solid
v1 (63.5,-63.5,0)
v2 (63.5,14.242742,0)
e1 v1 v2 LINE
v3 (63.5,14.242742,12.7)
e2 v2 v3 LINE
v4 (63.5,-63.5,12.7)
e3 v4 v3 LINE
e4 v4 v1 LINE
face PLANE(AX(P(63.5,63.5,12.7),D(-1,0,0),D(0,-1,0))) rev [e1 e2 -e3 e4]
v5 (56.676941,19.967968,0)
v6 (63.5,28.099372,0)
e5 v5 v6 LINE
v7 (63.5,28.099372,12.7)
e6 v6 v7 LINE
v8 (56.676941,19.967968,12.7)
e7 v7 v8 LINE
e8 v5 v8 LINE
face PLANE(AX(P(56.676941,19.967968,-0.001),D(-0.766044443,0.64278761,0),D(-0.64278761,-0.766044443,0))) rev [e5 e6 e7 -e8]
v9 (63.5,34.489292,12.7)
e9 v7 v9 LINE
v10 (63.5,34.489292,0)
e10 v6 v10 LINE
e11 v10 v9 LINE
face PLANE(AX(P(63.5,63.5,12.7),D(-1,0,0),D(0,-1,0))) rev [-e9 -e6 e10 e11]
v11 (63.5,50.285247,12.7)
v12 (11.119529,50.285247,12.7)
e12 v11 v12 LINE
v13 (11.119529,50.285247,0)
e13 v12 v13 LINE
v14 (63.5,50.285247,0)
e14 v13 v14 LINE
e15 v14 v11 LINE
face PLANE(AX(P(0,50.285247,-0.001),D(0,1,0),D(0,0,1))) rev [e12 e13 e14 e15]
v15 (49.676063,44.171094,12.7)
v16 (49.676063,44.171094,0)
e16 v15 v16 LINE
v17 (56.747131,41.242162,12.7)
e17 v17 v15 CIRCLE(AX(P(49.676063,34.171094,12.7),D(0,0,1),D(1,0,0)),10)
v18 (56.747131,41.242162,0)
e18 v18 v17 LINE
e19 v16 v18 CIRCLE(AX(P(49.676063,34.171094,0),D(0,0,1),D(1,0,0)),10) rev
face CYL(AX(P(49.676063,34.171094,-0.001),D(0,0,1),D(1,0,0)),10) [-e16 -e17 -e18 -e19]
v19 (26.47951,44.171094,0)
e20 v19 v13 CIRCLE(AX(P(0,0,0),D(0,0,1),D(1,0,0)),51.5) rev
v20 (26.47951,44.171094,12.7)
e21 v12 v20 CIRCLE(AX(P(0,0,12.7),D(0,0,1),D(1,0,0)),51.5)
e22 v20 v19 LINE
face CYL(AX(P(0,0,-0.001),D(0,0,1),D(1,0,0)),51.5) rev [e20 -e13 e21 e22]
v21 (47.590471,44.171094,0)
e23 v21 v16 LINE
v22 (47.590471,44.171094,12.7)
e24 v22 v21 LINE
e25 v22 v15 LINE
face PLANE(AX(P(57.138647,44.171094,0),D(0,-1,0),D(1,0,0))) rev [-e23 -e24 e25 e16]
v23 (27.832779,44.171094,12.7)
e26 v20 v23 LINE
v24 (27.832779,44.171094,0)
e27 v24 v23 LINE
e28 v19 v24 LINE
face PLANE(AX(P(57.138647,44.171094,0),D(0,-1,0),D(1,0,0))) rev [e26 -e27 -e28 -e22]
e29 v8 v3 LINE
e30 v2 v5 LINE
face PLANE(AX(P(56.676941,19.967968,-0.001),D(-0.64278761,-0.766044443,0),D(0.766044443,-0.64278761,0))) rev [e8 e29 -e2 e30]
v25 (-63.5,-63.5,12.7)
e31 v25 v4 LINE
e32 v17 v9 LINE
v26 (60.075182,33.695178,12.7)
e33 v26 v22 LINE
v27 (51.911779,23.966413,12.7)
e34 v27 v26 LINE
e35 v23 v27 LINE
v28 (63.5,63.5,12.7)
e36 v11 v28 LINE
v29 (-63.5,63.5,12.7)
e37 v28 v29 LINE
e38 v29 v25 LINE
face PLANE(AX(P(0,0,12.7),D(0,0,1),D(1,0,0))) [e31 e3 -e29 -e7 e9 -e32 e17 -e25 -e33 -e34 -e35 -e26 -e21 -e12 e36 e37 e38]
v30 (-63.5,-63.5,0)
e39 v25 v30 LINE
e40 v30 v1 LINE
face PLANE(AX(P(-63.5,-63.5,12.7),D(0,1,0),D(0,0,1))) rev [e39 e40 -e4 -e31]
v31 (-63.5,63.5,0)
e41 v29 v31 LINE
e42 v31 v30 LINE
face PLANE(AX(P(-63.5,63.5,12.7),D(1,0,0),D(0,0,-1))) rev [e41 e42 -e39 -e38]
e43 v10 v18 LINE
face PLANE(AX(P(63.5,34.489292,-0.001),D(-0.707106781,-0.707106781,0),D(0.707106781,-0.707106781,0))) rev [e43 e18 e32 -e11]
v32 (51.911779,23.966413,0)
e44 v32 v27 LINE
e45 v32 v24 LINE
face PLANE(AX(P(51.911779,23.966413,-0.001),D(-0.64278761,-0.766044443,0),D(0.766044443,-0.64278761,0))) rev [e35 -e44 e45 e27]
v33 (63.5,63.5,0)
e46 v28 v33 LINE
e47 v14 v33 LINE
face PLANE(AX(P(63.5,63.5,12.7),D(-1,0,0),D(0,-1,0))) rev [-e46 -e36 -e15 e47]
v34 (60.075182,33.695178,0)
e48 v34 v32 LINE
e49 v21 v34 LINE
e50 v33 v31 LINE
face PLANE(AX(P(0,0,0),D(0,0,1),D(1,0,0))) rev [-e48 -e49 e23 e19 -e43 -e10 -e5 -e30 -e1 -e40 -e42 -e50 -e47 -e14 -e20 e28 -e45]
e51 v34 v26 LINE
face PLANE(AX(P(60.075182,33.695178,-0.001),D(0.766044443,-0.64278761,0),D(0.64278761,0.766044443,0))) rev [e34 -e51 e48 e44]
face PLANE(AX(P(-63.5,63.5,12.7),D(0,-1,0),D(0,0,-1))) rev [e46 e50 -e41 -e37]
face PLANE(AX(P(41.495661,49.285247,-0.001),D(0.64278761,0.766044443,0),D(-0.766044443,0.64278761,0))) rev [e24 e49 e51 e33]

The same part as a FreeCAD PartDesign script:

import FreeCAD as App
import Part
import Sketcher
from FreeCAD import Vector
Q = App.Units.Quantity


def edges_at(feature, points):
    """Names of the edges that pass closest to the given points."""
    edges = feature.Shape.Edges
    near = lambda p: min(range(len(edges)), key=lambda i: edges[i].distToShape(Part.Vertex(*p))[0])
    return sorted({f"Edge{near(p) + 1}" for p in points})

doc = App.newDocument("Part")
body = doc.addObject("PartDesign::Body", "Body")

sketch1 = body.newObject("Sketcher::SketchObject", "Sketch")
sketch1.AttachmentSupport = (doc.getObject("XY_Plane"), [""])
sketch1.MapMode = "FlatFace"
sketch1.addGeometry(Part.LineSegment(Vector(-64, 64, 0), Vector(-64, -64, 0)), False)
sketch1.addGeometry(Part.LineSegment(Vector(-64, -64, 0), Vector(64, -64, 0)), False)
sketch1.addGeometry(Part.LineSegment(Vector(64, -64, 0), Vector(64, 64, 0)), False)
sketch1.addGeometry(Part.LineSegment(Vector(64, 64, 0), Vector(-64, 64, 0)), False)
sketch1.addConstraint(Sketcher.Constraint("Coincident", 0, 2, 1, 1))
sketch1.addConstraint(Sketcher.Constraint("Coincident", 1, 2, 2, 1))
sketch1.addConstraint(Sketcher.Constraint("Coincident", 2, 2, 3, 1))
sketch1.addConstraint(Sketcher.Constraint("Coincident", 3, 2, 0, 1))
sketch1.addConstraint(Sketcher.Constraint("Vertical", 0))
sketch1.addConstraint(Sketcher.Constraint("Horizontal", 1))
sketch1.addConstraint(Sketcher.Constraint("Vertical", 2))
sketch1.addConstraint(Sketcher.Constraint("Horizontal", 3))
sketch1.addConstraint(Sketcher.Constraint("Symmetric", 0, 2, 2, 2, -1, 1))
sketch1.addConstraint(Sketcher.Constraint("Equal", 3, 0))
sketch1.addConstraint(Sketcher.Constraint("DistanceX", 1, 1, 1, 2, Q("127 mm")))
pad1 = body.newObject("PartDesign::Pad", "Pad")
pad1.Profile = sketch1
pad1.Length = 12.7

sketch2 = body.newObject("Sketcher::SketchObject", "Sketch001")
sketch2.AttachmentSupport = (doc.getObject("XY_Plane"), [""])
sketch2.MapMode = "FlatFace"
sketch2.AttachmentOffset = App.Placement(Vector(0, 0, 12.7), App.Rotation())
sketch2.addGeometry(Part.Circle(Vector(0, 0, 0), Vector(0, 0, 1), 52), False)
sketch2.addConstraint(Sketcher.Constraint("Coincident", 0, 3, -1, 1))
sketch2.addConstraint(Sketcher.Constraint("Diameter", 0, Q("103 mm")))
pocket1 = body.newObject("PartDesign::Pocket", "Pocket")
pocket1.Profile = sketch2
pocket1.Type = "UpToFirst"

sketch3 = body.newObject("Sketcher::SketchObject", "Sketch002")
sketch3.AttachmentSupport = (doc.getObject("XY_Plane"), [""])
sketch3.MapMode = "FlatFace"
sketch3.AttachmentOffset = App.Placement(Vector(0, 0, 12.7), App.Rotation())
sketch3.addGeometry(Part.LineSegment(Vector(63.5, 50.3, 0), Vector(0, 50.3, 0)), False)
sketch3.addGeometry(Part.LineSegment(Vector(0, 50.3, 0), Vector(0, 49.3, 0)), False)
sketch3.addGeometry(Part.LineSegment(Vector(0, 49.3, 0), Vector(48.7, 49.3, 0)), False)
sketch3.addGeometry(Part.LineSegment(Vector(48.7, 49.3, 0), Vector(63.5, 34.5, 0)), False)
sketch3.addGeometry(Part.LineSegment(Vector(63.5, 34.5, 0), Vector(63.5, 50.3, 0)), False)
sketch3.addConstraint(Sketcher.Constraint("Coincident", 0, 2, 1, 1))
sketch3.addConstraint(Sketcher.Constraint("Coincident", 1, 2, 2, 1))
sketch3.addConstraint(Sketcher.Constraint("Coincident", 2, 2, 3, 1))
sketch3.addConstraint(Sketcher.Constraint("Coincident", 3, 2, 4, 1))
sketch3.addConstraint(Sketcher.Constraint("Coincident", 4, 2, 0, 1))
sketch3.addConstraint(Sketcher.Constraint("Horizontal", 0))
sketch3.addConstraint(Sketcher.Constraint("Vertical", 1))
sketch3.addConstraint(Sketcher.Constraint("Horizontal", 2))
sketch3.addConstraint(Sketcher.Constraint("Vertical", 4))
sketch3.addConstraint(Sketcher.Constraint("PointOnObject", 0, 2, -2))
sketch3.addConstraint(Sketcher.Constraint("DistanceY", 1, 2, 1, 1, Q("1 mm")))
sketch3.addConstraint(Sketcher.Constraint("Angle", 3, Q("-45 deg")))
sketch3.addConstraint(Sketcher.Constraint("DistanceX", 0, 2, 0, 1, Q("63.5 mm")))
sketch3.addConstraint(Sketcher.Constraint("Distance", 3, Q("20.92464 mm")))
sketch3.addConstraint(Sketcher.Constraint("DistanceY", -1, 1, 0, 2, Q("50.285247 mm")))
pocket2 = body.newObject("PartDesign::Pocket", "Pocket001")
pocket2.Profile = sketch3
pocket2.Type = "UpToFirst"

sketch4 = body.newObject("Sketcher::SketchObject", "Sketch003")
sketch4.AttachmentSupport = (doc.getObject("XY_Plane"), [""])
sketch4.MapMode = "FlatFace"
sketch4.AttachmentOffset = App.Placement(Vector(0, 0, 12.7), App.Rotation())
sketch4.addGeometry(Part.LineSegment(Vector(60, 34, 0), Vector(41, 49, 0)), False)
sketch4.addGeometry(Part.LineSegment(Vector(41, 49, 0), Vector(22, 49, 0)), False)
sketch4.addGeometry(Part.LineSegment(Vector(22, 49, 0), Vector(52, 24, 0)), False)
sketch4.addGeometry(Part.LineSegment(Vector(52, 24, 0), Vector(60, 34, 0)), False)
sketch4.addConstraint(Sketcher.Constraint("Coincident", 0, 2, 1, 1))
sketch4.addConstraint(Sketcher.Constraint("Coincident", 1, 2, 2, 1))
sketch4.addConstraint(Sketcher.Constraint("Coincident", 2, 2, 3, 1))
sketch4.addConstraint(Sketcher.Constraint("Coincident", 3, 2, 0, 1))
sketch4.addConstraint(Sketcher.Constraint("Horizontal", 1))
sketch4.addConstraint(Sketcher.Constraint("Parallel", 0, 2))
sketch4.addConstraint(Sketcher.Constraint("Perpendicular", 2, 3))
sketch4.addConstraint(Sketcher.Constraint("Angle", 0, Q("140 deg")))
sketch4.addConstraint(Sketcher.Constraint("Distance", 3, Q("12.7 mm")))
sketch4.addConstraint(Sketcher.Constraint("DistanceX", -1, 1, 0, 2, Q("41.495661 mm")))
sketch4.addConstraint(Sketcher.Constraint("DistanceX", -1, 1, 2, 2, Q("51.911779 mm")))
sketch4.addConstraint(Sketcher.Constraint("DistanceY", -1, 1, 0, 2, Q("49.285247 mm")))
pocket3 = body.newObject("PartDesign::Pocket", "Pocket002")
pocket3.Profile = sketch4
pocket3.Type = "UpToFirst"

sketch5 = body.newObject("Sketcher::SketchObject", "Sketch004")
sketch5.AttachmentSupport = (doc.getObject("XY_Plane"), [""])
sketch5.MapMode = "FlatFace"
sketch5.AttachmentOffset = App.Placement(Vector(0, 0, 12.7), App.Rotation())
sketch5.addGeometry(Part.LineSegment(Vector(64, 28, 0), Vector(57, 20, 0)), False)
sketch5.addGeometry(Part.LineSegment(Vector(57, 20, 0), Vector(64, 14, 0)), False)
sketch5.addGeometry(Part.LineSegment(Vector(64, 14, 0), Vector(64, 28, 0)), False)
sketch5.addConstraint(Sketcher.Constraint("Coincident", 0, 2, 1, 1))
sketch5.addConstraint(Sketcher.Constraint("Coincident", 1, 2, 2, 1))
sketch5.addConstraint(Sketcher.Constraint("Coincident", 2, 2, 0, 1))
sketch5.addConstraint(Sketcher.Constraint("Vertical", 2))
sketch5.addConstraint(Sketcher.Constraint("Perpendicular", 0, 1))
sketch5.addConstraint(Sketcher.Constraint("Angle", 0, Q("-130 deg")))
sketch5.addConstraint(Sketcher.Constraint("DistanceX", -1, 1, 1, 2, Q("63.5 mm")))
sketch5.addConstraint(Sketcher.Constraint("DistanceY", 2, 1, 2, 2, Q("13.85663 mm")))
sketch5.addConstraint(Sketcher.Constraint("DistanceY", -1, 1, 1, 2, Q("14.242742 mm")))
pocket4 = body.newObject("PartDesign::Pocket", "Pocket003")
pocket4.Profile = sketch5
pocket4.Type = "UpToFirst"

sketch6 = body.newObject("Sketcher::SketchObject", "Sketch005")
sketch6.AttachmentSupport = (doc.getObject("XY_Plane"), [""])
sketch6.MapMode = "FlatFace"
sketch6.AttachmentOffset = App.Placement(Vector(0, 0, 12.7), App.Rotation())
sketch6.addGeometry(Part.LineSegment(Vector(57, 50, 0), Vector(12, 50, 0)), False)
sketch6.addGeometry(Part.LineSegment(Vector(12, 50, 0), Vector(19, 44, 0)), False)
sketch6.addGeometry(Part.LineSegment(Vector(19, 44, 0), Vector(57, 44, 0)), False)
sketch6.addGeometry(Part.LineSegment(Vector(57, 44, 0), Vector(57, 50, 0)), False)
sketch6.addConstraint(Sketcher.Constraint("Coincident", 0, 2, 1, 1))
sketch6.addConstraint(Sketcher.Constraint("Coincident", 1, 2, 2, 1))
sketch6.addConstraint(Sketcher.Constraint("Coincident", 2, 2, 3, 1))
sketch6.addConstraint(Sketcher.Constraint("Coincident", 3, 2, 0, 1))
sketch6.addConstraint(Sketcher.Constraint("Horizontal", 0))
sketch6.addConstraint(Sketcher.Constraint("Horizontal", 2))
sketch6.addConstraint(Sketcher.Constraint("Vertical", 3))
sketch6.addConstraint(Sketcher.Constraint("DistanceX", 0, 2, 0, 1, Q("45.344299 mm")))
sketch6.addConstraint(Sketcher.Constraint("DistanceY", 3, 1, 3, 2, Q("5.626261 mm")))
sketch6.addConstraint(Sketcher.Constraint("DistanceX", 2, 1, 2, 2, Q("37.777543 mm")))
sketch6.addConstraint(Sketcher.Constraint("DistanceX", -1, 1, 0, 2, Q("11.794347 mm")))
sketch6.addConstraint(Sketcher.Constraint("DistanceY", -1, 1, 0, 2, Q("49.797355 mm")))
pocket5 = body.newObject("PartDesign::Pocket", "Pocket004")
pocket5.Profile = sketch6
pocket5.Type = "ThroughAll"
doc.recompute()

fillet = body.newObject("PartDesign::Fillet", "Fillet")
fillet.Base = (pocket5, edges_at(pocket5, [(53.818, 44.171, 6.35)]))
fillet.Radius = 10

doc.recompute()
